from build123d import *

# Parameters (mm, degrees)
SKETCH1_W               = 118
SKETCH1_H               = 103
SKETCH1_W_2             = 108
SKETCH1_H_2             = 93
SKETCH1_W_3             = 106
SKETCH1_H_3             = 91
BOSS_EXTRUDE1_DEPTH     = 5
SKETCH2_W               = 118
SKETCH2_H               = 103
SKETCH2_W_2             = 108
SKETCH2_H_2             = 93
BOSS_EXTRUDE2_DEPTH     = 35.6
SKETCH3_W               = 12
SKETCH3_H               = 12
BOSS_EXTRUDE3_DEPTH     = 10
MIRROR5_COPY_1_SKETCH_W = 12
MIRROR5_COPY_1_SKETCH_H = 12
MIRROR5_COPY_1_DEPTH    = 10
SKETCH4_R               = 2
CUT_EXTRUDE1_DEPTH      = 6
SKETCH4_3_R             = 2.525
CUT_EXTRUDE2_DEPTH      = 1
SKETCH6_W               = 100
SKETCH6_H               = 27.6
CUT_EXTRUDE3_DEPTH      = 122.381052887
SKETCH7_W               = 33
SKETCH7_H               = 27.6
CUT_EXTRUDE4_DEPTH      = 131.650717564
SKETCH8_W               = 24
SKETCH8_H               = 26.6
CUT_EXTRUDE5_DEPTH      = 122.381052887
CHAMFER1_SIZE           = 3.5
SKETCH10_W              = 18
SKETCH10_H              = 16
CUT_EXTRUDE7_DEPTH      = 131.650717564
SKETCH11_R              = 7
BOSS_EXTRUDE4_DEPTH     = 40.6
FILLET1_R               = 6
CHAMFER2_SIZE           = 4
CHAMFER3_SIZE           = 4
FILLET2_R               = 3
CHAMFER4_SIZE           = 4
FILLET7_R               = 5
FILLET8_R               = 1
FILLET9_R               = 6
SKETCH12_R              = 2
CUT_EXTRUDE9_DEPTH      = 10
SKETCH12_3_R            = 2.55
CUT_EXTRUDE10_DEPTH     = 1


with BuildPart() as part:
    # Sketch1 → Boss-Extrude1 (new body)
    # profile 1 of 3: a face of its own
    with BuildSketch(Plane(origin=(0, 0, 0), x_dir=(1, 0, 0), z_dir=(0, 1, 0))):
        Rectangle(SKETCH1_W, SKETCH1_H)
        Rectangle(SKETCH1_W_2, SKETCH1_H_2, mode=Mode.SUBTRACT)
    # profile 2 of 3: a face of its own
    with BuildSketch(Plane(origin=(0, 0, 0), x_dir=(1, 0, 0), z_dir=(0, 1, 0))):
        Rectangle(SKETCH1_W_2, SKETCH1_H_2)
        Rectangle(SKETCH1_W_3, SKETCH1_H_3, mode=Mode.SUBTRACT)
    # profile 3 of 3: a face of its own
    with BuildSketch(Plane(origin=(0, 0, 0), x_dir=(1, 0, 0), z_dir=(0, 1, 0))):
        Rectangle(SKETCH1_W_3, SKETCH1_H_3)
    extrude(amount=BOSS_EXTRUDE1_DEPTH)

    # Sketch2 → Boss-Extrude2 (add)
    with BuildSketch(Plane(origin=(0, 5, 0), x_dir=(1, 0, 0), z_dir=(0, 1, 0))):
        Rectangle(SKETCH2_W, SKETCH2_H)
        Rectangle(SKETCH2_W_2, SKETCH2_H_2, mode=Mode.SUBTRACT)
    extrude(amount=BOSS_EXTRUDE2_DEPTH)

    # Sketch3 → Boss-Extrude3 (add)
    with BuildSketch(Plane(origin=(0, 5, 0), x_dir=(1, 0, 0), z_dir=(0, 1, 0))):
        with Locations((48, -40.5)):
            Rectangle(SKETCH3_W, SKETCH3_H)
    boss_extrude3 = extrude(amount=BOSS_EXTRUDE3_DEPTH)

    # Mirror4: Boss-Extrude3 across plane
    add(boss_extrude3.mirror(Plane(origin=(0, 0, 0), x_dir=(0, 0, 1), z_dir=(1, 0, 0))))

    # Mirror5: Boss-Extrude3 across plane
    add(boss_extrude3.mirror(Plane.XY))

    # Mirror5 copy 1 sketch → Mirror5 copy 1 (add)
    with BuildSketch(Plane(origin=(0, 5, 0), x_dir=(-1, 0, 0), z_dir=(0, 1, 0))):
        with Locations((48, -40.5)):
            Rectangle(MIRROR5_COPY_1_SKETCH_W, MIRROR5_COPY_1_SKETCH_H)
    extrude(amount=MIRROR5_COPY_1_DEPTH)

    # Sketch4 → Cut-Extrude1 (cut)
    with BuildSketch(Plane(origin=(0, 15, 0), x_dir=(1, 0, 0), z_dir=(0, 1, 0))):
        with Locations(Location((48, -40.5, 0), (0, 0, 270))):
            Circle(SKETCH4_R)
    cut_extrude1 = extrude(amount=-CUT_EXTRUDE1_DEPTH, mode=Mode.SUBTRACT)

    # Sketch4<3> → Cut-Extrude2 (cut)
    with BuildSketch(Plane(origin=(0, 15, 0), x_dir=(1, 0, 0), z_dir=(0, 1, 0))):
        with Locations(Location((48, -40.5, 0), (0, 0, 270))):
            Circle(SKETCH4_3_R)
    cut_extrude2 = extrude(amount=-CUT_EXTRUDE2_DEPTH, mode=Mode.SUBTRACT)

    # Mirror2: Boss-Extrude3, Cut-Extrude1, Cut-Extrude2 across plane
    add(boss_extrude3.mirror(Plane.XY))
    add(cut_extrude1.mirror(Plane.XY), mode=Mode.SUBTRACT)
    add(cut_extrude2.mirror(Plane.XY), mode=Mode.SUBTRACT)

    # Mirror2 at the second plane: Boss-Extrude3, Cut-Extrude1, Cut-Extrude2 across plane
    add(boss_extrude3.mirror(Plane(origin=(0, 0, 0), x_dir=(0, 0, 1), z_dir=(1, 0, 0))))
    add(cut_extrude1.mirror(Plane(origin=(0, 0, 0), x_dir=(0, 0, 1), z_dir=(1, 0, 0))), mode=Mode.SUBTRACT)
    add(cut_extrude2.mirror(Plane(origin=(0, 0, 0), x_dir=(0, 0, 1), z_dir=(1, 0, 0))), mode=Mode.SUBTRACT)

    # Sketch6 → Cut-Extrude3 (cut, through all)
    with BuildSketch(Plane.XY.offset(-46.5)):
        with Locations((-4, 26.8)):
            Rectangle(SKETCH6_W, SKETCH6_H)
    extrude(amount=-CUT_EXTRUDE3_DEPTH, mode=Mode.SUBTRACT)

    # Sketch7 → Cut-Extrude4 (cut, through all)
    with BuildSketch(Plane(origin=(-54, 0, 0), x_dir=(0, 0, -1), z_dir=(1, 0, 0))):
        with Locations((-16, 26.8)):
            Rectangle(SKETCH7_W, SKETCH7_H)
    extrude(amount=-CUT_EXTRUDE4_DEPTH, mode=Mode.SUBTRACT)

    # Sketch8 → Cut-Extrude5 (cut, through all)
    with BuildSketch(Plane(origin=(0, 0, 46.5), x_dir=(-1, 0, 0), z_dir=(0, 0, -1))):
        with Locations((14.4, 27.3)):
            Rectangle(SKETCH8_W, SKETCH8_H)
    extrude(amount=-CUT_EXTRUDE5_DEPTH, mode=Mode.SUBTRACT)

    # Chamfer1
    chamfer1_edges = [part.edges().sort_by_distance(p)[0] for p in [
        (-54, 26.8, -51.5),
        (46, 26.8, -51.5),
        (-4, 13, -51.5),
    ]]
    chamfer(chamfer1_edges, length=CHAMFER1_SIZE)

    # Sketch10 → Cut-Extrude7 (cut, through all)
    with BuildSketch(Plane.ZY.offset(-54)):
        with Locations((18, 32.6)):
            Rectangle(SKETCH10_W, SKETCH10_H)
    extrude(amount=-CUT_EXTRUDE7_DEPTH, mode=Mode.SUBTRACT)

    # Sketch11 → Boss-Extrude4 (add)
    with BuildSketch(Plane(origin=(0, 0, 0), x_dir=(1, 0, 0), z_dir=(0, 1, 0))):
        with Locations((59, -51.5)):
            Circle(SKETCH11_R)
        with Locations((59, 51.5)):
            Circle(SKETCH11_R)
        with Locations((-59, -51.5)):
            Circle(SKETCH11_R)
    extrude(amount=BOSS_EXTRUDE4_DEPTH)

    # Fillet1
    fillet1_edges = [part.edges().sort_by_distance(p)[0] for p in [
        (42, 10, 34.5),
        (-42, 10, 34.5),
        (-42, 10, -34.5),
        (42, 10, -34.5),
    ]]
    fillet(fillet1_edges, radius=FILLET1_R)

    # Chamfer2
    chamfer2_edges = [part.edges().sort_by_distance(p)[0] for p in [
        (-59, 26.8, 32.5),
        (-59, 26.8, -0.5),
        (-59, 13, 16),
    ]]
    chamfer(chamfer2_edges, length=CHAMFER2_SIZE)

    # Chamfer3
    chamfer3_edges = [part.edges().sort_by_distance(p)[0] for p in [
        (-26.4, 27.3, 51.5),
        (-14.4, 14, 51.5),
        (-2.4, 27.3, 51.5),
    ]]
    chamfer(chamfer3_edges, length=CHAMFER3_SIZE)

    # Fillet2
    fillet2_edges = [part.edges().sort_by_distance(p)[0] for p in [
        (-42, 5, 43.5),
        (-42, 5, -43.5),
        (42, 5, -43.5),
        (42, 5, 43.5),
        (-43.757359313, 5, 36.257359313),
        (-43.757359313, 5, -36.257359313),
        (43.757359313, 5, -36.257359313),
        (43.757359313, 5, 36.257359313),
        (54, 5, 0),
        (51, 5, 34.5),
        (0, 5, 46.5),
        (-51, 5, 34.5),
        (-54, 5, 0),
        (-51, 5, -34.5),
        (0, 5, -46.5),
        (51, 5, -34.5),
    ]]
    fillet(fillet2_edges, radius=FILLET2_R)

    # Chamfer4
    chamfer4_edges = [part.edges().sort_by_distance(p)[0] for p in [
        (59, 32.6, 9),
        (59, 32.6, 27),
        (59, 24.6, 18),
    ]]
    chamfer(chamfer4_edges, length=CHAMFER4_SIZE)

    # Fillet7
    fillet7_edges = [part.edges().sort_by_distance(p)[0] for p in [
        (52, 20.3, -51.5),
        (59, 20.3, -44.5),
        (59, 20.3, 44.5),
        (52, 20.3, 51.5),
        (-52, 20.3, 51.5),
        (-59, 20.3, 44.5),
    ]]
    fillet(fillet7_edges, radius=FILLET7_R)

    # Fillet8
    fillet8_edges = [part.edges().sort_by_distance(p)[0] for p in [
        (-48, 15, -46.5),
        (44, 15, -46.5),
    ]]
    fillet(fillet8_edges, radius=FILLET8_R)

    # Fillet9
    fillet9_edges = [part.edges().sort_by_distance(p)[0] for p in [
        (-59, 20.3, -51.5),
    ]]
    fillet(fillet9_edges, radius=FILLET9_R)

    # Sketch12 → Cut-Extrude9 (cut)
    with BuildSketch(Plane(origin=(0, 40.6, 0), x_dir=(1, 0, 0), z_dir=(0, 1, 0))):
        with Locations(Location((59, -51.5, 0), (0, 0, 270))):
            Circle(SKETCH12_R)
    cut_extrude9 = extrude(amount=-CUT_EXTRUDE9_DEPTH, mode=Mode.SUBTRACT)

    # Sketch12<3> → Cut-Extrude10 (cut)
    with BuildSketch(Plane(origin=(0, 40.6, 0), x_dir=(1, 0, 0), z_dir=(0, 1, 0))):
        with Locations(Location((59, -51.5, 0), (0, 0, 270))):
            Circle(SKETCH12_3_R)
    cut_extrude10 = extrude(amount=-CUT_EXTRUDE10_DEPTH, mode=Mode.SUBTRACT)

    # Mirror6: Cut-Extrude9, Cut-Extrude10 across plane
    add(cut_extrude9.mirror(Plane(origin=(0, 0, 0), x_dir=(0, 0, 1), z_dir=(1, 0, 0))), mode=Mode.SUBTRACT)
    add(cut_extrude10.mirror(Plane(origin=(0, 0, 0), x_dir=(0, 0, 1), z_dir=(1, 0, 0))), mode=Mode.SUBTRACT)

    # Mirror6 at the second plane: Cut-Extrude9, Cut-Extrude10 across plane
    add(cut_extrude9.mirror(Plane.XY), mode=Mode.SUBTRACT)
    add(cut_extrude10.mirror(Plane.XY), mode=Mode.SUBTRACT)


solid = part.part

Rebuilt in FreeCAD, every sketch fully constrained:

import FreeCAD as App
import Part
import Sketcher


def edges_at(feature, points):
    """Names of the edges that pass closest to the given points."""
    edges = feature.Shape.Edges
    near = lambda p: min(range(len(edges)), key=lambda i: edges[i].distToShape(Part.Vertex(*p))[0])
    return sorted({f"Edge{near(p) + 1}" for p in points})

doc = App.newDocument("Part")
body = doc.addObject("PartDesign::Body", "Body")

sketch1 = body.newObject("Sketcher::SketchObject", "Sketch")
sketch1.AttachmentSupport = (doc.getObject("XZ_Plane"), [""])
sketch1.MapMode = "FlatFace"
sketch1.addGeometry(Part.LineSegment(App.Vector(-59, -52, 0), App.Vector(-59, 52, 0)), False)
sketch1.addGeometry(Part.LineSegment(App.Vector(-59, 52, 0), App.Vector(59, 52, 0)), False)
sketch1.addGeometry(Part.LineSegment(App.Vector(59, 52, 0), App.Vector(59, -52, 0)), False)
sketch1.addGeometry(Part.LineSegment(App.Vector(59, -52, 0), App.Vector(-59, -52, 0)), False)
sketch1.addConstraint(Sketcher.Constraint("Coincident", 0, 2, 1, 1))
sketch1.addConstraint(Sketcher.Constraint("Coincident", 1, 2, 2, 1))
sketch1.addConstraint(Sketcher.Constraint("Coincident", 2, 2, 3, 1))
sketch1.addConstraint(Sketcher.Constraint("Coincident", 3, 2, 0, 1))
sketch1.addConstraint(Sketcher.Constraint("Vertical", 0))
sketch1.addConstraint(Sketcher.Constraint("Horizontal", 1))
sketch1.addConstraint(Sketcher.Constraint("Vertical", 2))
sketch1.addConstraint(Sketcher.Constraint("Horizontal", 3))
sketch1.addConstraint(Sketcher.Constraint("Symmetric", 0, 2, 2, 2, -1, 1))
sketch1.addConstraint(Sketcher.Constraint("DistanceX", 1, 1, 1, 2, 118.0))
sketch1.addConstraint(Sketcher.Constraint("DistanceY", 0, 1, 0, 2, 103.0))
pad1 = body.newObject("PartDesign::Pad", "Pad")
pad1.Profile = sketch1
pad1.Length = 5
pad1.Reversed = True

sketch2 = body.newObject("Sketcher::SketchObject", "Sketch001")
sketch2.AttachmentSupport = (doc.getObject("XZ_Plane"), [""])
sketch2.MapMode = "FlatFace"
sketch2.AttachmentOffset = App.Placement(App.Vector(0, 0, -5), App.Rotation())
sketch2.addGeometry(Part.LineSegment(App.Vector(-59, -52, 0), App.Vector(-59, 52, 0)), False)
sketch2.addGeometry(Part.LineSegment(App.Vector(-59, 52, 0), App.Vector(59, 52, 0)), False)
sketch2.addGeometry(Part.LineSegment(App.Vector(59, 52, 0), App.Vector(59, -52, 0)), False)
sketch2.addGeometry(Part.LineSegment(App.Vector(59, -52, 0), App.Vector(-59, -52, 0)), False)
sketch2.addGeometry(Part.LineSegment(App.Vector(54, 46, 0), App.Vector(-54, 46, 0)), False)
sketch2.addGeometry(Part.LineSegment(App.Vector(-54, 46, 0), App.Vector(-54, -46, 0)), False)
sketch2.addGeometry(Part.LineSegment(App.Vector(-54, -46, 0), App.Vector(54, -46, 0)), False)
sketch2.addGeometry(Part.LineSegment(App.Vector(54, -46, 0), App.Vector(54, 46, 0)), False)
sketch2.addConstraint(Sketcher.Constraint("Coincident", 0, 2, 1, 1))
sketch2.addConstraint(Sketcher.Constraint("Coincident", 1, 2, 2, 1))
sketch2.addConstraint(Sketcher.Constraint("Coincident", 2, 2, 3, 1))
sketch2.addConstraint(Sketcher.Constraint("Coincident", 3, 2, 0, 1))
sketch2.addConstraint(Sketcher.Constraint("Coincident", 4, 2, 5, 1))
sketch2.addConstraint(Sketcher.Constraint("Coincident", 5, 2, 6, 1))
sketch2.addConstraint(Sketcher.Constraint("Coincident", 6, 2, 7, 1))
sketch2.addConstraint(Sketcher.Constraint("Coincident", 7, 2, 4, 1))
sketch2.addConstraint(Sketcher.Constraint("Vertical", 0))
sketch2.addConstraint(Sketcher.Constraint("Horizontal", 1))
sketch2.addConstraint(Sketcher.Constraint("Vertical", 2))
sketch2.addConstraint(Sketcher.Constraint("Horizontal", 3))
sketch2.addConstraint(Sketcher.Constraint("Horizontal", 4))
sketch2.addConstraint(Sketcher.Constraint("Vertical", 5))
sketch2.addConstraint(Sketcher.Constraint("Horizontal", 6))
sketch2.addConstraint(Sketcher.Constraint("Vertical", 7))
sketch2.addConstraint(Sketcher.Constraint("Symmetric", 0, 2, 2, 2, -1, 1))
sketch2.addConstraint(Sketcher.Constraint("Symmetric", 4, 2, 6, 2, -1, 1))
sketch2.addConstraint(Sketcher.Constraint("DistanceX", 1, 1, 1, 2, 118.0))
sketch2.addConstraint(Sketcher.Constraint("DistanceX", 4, 2, 4, 1, 108.0))
sketch2.addConstraint(Sketcher.Constraint("DistanceY", 0, 1, 0, 2, 103.0))
sketch2.addConstraint(Sketcher.Constraint("DistanceY", 5, 2, 5, 1, 93.0))
pad2 = body.newObject("PartDesign::Pad", "Pad001")
pad2.Profile = sketch2
pad2.Length = 35.6
pad2.Reversed = True

sketch3 = body.newObject("Sketcher::SketchObject", "Sketch002")
sketch3.AttachmentSupport = (doc.getObject("XZ_Plane"), [""])
sketch3.MapMode = "FlatFace"
sketch3.AttachmentOffset = App.Placement(App.Vector(0, 0, -5), App.Rotation())
sketch3.addGeometry(Part.LineSegment(App.Vector(42, 34, 0), App.Vector(42, 46, 0)), False)
sketch3.addGeometry(Part.LineSegment(App.Vector(42, 46, 0), App.Vector(54, 46, 0)), False)
sketch3.addGeometry(Part.LineSegment(App.Vector(54, 46, 0), App.Vector(54, 34, 0)), False)
sketch3.addGeometry(Part.LineSegment(App.Vector(54, 34, 0), App.Vector(42, 34, 0)), False)
sketch3.addConstraint(Sketcher.Constraint("Coincident", 0, 2, 1, 1))
sketch3.addConstraint(Sketcher.Constraint("Coincident", 1, 2, 2, 1))
sketch3.addConstraint(Sketcher.Constraint("Coincident", 2, 2, 3, 1))
sketch3.addConstraint(Sketcher.Constraint("Coincident", 3, 2, 0, 1))
sketch3.addConstraint(Sketcher.Constraint("Vertical", 0))
sketch3.addConstraint(Sketcher.Constraint("Horizontal", 1))
sketch3.addConstraint(Sketcher.Constraint("Vertical", 2))
sketch3.addConstraint(Sketcher.Constraint("Horizontal", 3))
sketch3.addConstraint(Sketcher.Constraint("Equal", 3, 0))
sketch3.addConstraint(Sketcher.Constraint("DistanceX", 1, 1, 1, 2, 12.0))
sketch3.addConstraint(Sketcher.Constraint("DistanceX", -1, 1, 0, 2, 42.0))
sketch3.addConstraint(Sketcher.Constraint("DistanceY", -1, 1, 0, 2, 46.5))
pad3 = body.newObject("PartDesign::Pad", "Pad002")
pad3.Profile = sketch3
pad3.Length = 10
pad3.Reversed = True
doc.recompute()

mirrored = body.newObject("PartDesign::Mirrored", "Mirrored")
mirrored.Originals = [pad3]
mirrored.MirrorPlane = (doc.getObject("YZ_Plane"), [""])
body.Tip = mirrored
doc.recompute()

mirrored2 = body.newObject("PartDesign::Mirrored", "Mirrored001")
mirrored2.Originals = [pad3]
mirrored2.MirrorPlane = (doc.getObject("XY_Plane"), [""])
body.Tip = mirrored2

sketch4 = body.newObject("Sketcher::SketchObject", "Sketch003")
sketch4.AttachmentSupport = (doc.getObject("XZ_Plane"), [""])
sketch4.MapMode = "FlatFace"
sketch4.AttachmentOffset = App.Placement(App.Vector(0, 0, -5), App.Rotation())
sketch4.addGeometry(Part.LineSegment(App.Vector(-42, -34, 0), App.Vector(-42, -46, 0)), False)
sketch4.addGeometry(Part.LineSegment(App.Vector(-42, -46, 0), App.Vector(-54, -46, 0)), False)
sketch4.addGeometry(Part.LineSegment(App.Vector(-54, -46, 0), App.Vector(-54, -34, 0)), False)
sketch4.addGeometry(Part.LineSegment(App.Vector(-54, -34, 0), App.Vector(-42, -34, 0)), False)
sketch4.addConstraint(Sketcher.Constraint("Coincident", 0, 2, 1, 1))
sketch4.addConstraint(Sketcher.Constraint("Coincident", 1, 2, 2, 1))
sketch4.addConstraint(Sketcher.Constraint("Coincident", 2, 2, 3, 1))
sketch4.addConstraint(Sketcher.Constraint("Coincident", 3, 2, 0, 1))
sketch4.addConstraint(Sketcher.Constraint("Vertical", 0))
sketch4.addConstraint(Sketcher.Constraint("Horizontal", 1))
sketch4.addConstraint(Sketcher.Constraint("Vertical", 2))
sketch4.addConstraint(Sketcher.Constraint("Horizontal", 3))
sketch4.addConstraint(Sketcher.Constraint("Equal", 3, 0))
sketch4.addConstraint(Sketcher.Constraint("DistanceX", 1, 2, 1, 1, 12.0))
sketch4.addConstraint(Sketcher.Constraint("DistanceX", 0, 2, -1, 1, 42.0))
sketch4.addConstraint(Sketcher.Constraint("DistanceY", 0, 2, -1, 1, 46.5))
pad4 = body.newObject("PartDesign::Pad", "Pad003")
pad4.Profile = sketch4
pad4.Length = 10
pad4.Reversed = True

sketch5 = body.newObject("Sketcher::SketchObject", "Sketch004")
sketch5.AttachmentSupport = (doc.getObject("XZ_Plane"), [""])
sketch5.MapMode = "FlatFace"
sketch5.AttachmentOffset = App.Placement(App.Vector(0, 0, -15), App.Rotation())
sketch5.addGeometry(Part.Circle(App.Vector(48, 40.5, 0), App.Vector(0, 0, 1), 2), False)
sketch5.addConstraint(Sketcher.Constraint("Diameter", 0, 4.0))
sketch5.addConstraint(Sketcher.Constraint("DistanceX", -1, 1, 0, 3, 48.0))
sketch5.addConstraint(Sketcher.Constraint("DistanceY", -1, 1, 0, 3, 40.5))
pocket1 = body.newObject("PartDesign::Pocket", "Pocket")
pocket1.Profile = sketch5
pocket1.Length = 6
pocket1.Reversed = True

sketch6 = body.newObject("Sketcher::SketchObject", "Sketch005")
sketch6.AttachmentSupport = (doc.getObject("XZ_Plane"), [""])
sketch6.MapMode = "FlatFace"
sketch6.AttachmentOffset = App.Placement(App.Vector(0, 0, -15), App.Rotation())
sketch6.addGeometry(Part.Circle(App.Vector(48, 40.5, 0), App.Vector(0, 0, 1), 2.5), False)
sketch6.addConstraint(Sketcher.Constraint("Diameter", 0, 5.05))
sketch6.addConstraint(Sketcher.Constraint("DistanceX", -1, 1, 0, 3, 48.0))
sketch6.addConstraint(Sketcher.Constraint("DistanceY", -1, 1, 0, 3, 40.5))
pocket2 = body.newObject("PartDesign::Pocket", "Pocket001")
pocket2.Profile = sketch6
pocket2.Length = 1
pocket2.Reversed = True
doc.recompute()

mirrored3 = body.newObject("PartDesign::Mirrored", "Mirrored002")
mirrored3.Originals = [pad3, pocket1, pocket2]
mirrored3.MirrorPlane = (doc.getObject("XY_Plane"), [""])
body.Tip = mirrored3
doc.recompute()

mirrored4 = body.newObject("PartDesign::Mirrored", "Mirrored003")
mirrored4.Originals = [pad3, pocket1, pocket2]
mirrored4.MirrorPlane = (doc.getObject("YZ_Plane"), [""])
body.Tip = mirrored4

sketch7 = body.newObject("Sketcher::SketchObject", "Sketch006")
sketch7.AttachmentSupport = (doc.getObject("XY_Plane"), [""])
sketch7.MapMode = "FlatFace"
sketch7.AttachmentOffset = App.Placement(App.Vector(0, 0, -46.5), App.Rotation())
sketch7.addGeometry(Part.LineSegment(App.Vector(-54, 41, 0), App.Vector(-54, 13, 0)), False)
sketch7.addGeometry(Part.LineSegment(App.Vector(-54, 13, 0), App.Vector(46, 13, 0)), False)
sketch7.addGeometry(Part.LineSegment(App.Vector(46, 13, 0), App.Vector(46, 41, 0)), False)
sketch7.addGeometry(Part.LineSegment(App.Vector(46, 41, 0), App.Vector(-54, 41, 0)), False)
sketch7.addConstraint(Sketcher.Constraint("Coincident", 0, 2, 1, 1))
sketch7.addConstraint(Sketcher.Constraint("Coincident", 1, 2, 2, 1))
sketch7.addConstraint(Sketcher.Constraint("Coincident", 2, 2, 3, 1))
sketch7.addConstraint(Sketcher.Constraint("Coincident", 3, 2, 0, 1))
sketch7.addConstraint(Sketcher.Constraint("Vertical", 0))
sketch7.addConstraint(Sketcher.Constraint("Horizontal", 1))
sketch7.addConstraint(Sketcher.Constraint("Vertical", 2))
sketch7.addConstraint(Sketcher.Constraint("Horizontal", 3))
sketch7.addConstraint(Sketcher.Constraint("DistanceX", 1, 1, 1, 2, 100.0))
sketch7.addConstraint(Sketcher.Constraint("DistanceY", 0, 2, 0, 1, 27.6))
sketch7.addConstraint(Sketcher.Constraint("DistanceX", 0, 2, -1, 1, 54.0))
sketch7.addConstraint(Sketcher.Constraint("DistanceY", -1, 1, 0, 2, 13.0))
pocket3 = body.newObject("PartDesign::Pocket", "Pocket002")
pocket3.Profile = sketch7
pocket3.Type = "ThroughAll"

sketch8 = body.newObject("Sketcher::SketchObject", "Sketch007")
sketch8.AttachmentSupport = (doc.getObject("YZ_Plane"), [""])
sketch8.MapMode = "FlatFace"
sketch8.AttachmentOffset = App.Placement(App.Vector(0, 0, -54), App.Rotation())
sketch8.addGeometry(Part.LineSegment(App.Vector(41, 32, 0), App.Vector(13, 32, 0)), False)
sketch8.addGeometry(Part.LineSegment(App.Vector(13, 32, 0), App.Vector(13, 0, 0)), False)
sketch8.addGeometry(Part.LineSegment(App.Vector(13, 0, 0), App.Vector(41, 0, 0)), False)
sketch8.addGeometry(Part.LineSegment(App.Vector(41, 0, 0), App.Vector(41, 32, 0)), False)
sketch8.addConstraint(Sketcher.Constraint("Coincident", 0, 2, 1, 1))
sketch8.addConstraint(Sketcher.Constraint("Coincident", 1, 2, 2, 1))
sketch8.addConstraint(Sketcher.Constraint("Coincident", 2, 2, 3, 1))
sketch8.addConstraint(Sketcher.Constraint("Coincident", 3, 2, 0, 1))
sketch8.addConstraint(Sketcher.Constraint("Horizontal", 0))
sketch8.addConstraint(Sketcher.Constraint("Vertical", 1))
sketch8.addConstraint(Sketcher.Constraint("Horizontal", 2))
sketch8.addConstraint(Sketcher.Constraint("Vertical", 3))
sketch8.addConstraint(Sketcher.Constraint("DistanceY", 1, 2, 1, 1, 33.0))
sketch8.addConstraint(Sketcher.Constraint("DistanceX", 0, 2, 0, 1, 27.6))
sketch8.addConstraint(Sketcher.Constraint("DistanceX", -1, 1, 0, 2, 13.0))
sketch8.addConstraint(Sketcher.Constraint("DistanceY", -1, 1, 0, 2, 32.5))
pocket4 = body.newObject("PartDesign::Pocket", "Pocket003")
pocket4.Profile = sketch8
pocket4.Type = "ThroughAll"

sketch9 = body.newObject("Sketcher::SketchObject", "Sketch008")
sketch9.AttachmentSupport = (doc.getObject("XY_Plane"), [""])
sketch9.MapMode = "FlatFace"
sketch9.AttachmentOffset = App.Placement(App.Vector(0, 0, 46.5), App.Rotation())
sketch9.addGeometry(Part.LineSegment(App.Vector(-2, 41, 0), App.Vector(-2, 14, 0)), False)
sketch9.addGeometry(Part.LineSegment(App.Vector(-2, 14, 0), App.Vector(-26, 14, 0)), False)
sketch9.addGeometry(Part.LineSegment(App.Vector(-26, 14, 0), App.Vector(-26, 41, 0)), False)
sketch9.addGeometry(Part.LineSegment(App.Vector(-26, 41, 0), App.Vector(-2, 41, 0)), False)
sketch9.addConstraint(Sketcher.Constraint("Coincident", 0, 2, 1, 1))
sketch9.addConstraint(Sketcher.Constraint("Coincident", 1, 2, 2, 1))
sketch9.addConstraint(Sketcher.Constraint("Coincident", 2, 2, 3, 1))
sketch9.addConstraint(Sketcher.Constraint("Coincident", 3, 2, 0, 1))
sketch9.addConstraint(Sketcher.Constraint("Vertical", 0))
sketch9.addConstraint(Sketcher.Constraint("Horizontal", 1))
sketch9.addConstraint(Sketcher.Constraint("Vertical", 2))
sketch9.addConstraint(Sketcher.Constraint("Horizontal", 3))
sketch9.addConstraint(Sketcher.Constraint("DistanceX", 1, 2, 1, 1, 24.0))
sketch9.addConstraint(Sketcher.Constraint("DistanceY", 0, 2, 0, 1, 26.6))
sketch9.addConstraint(Sketcher.Constraint("DistanceY", -1, 1, 0, 2, 14.0))
sketch9.addConstraint(Sketcher.Constraint("DistanceX", 0, 2, -1, 1, 2.4))
pocket5 = body.newObject("PartDesign::Pocket", "Pocket004")
pocket5.Profile = sketch9
pocket5.Type = "ThroughAll"
pocket5.Reversed = True
doc.recompute()

chamfer = body.newObject("PartDesign::Chamfer", "Chamfer")
chamfer.Base = (pocket5, edges_at(pocket5, [(-54, 26.8, -51.5), (46, 26.8, -51.5), (-4, 13, -51.5)]))
chamfer.Size = 3.5

sketch10 = body.newObject("Sketcher::SketchObject", "Sketch009")
sketch10.AttachmentSupport = (doc.getObject("YZ_Plane"), [""])
sketch10.MapMode = "FlatFace"
sketch10.AttachmentOffset = App.Placement(App.Vector(0, 0, 54), App.Rotation())
sketch10.addGeometry(Part.LineSegment(App.Vector(41, 9, 0), App.Vector(25, 9, 0)), False)
sketch10.addGeometry(Part.LineSegment(App.Vector(25, 9, 0), App.Vector(25, 27, 0)), False)
sketch10.addGeometry(Part.LineSegment(App.Vector(25, 27, 0), App.Vector(41, 27, 0)), False)
sketch10.addGeometry(Part.LineSegment(App.Vector(41, 27, 0), App.Vector(41, 9, 0)), False)
sketch10.addConstraint(Sketcher.Constraint("Coincident", 0, 2, 1, 1))
sketch10.addConstraint(Sketcher.Constraint("Coincident", 1, 2, 2, 1))
sketch10.addConstraint(Sketcher.Constraint("Coincident", 2, 2, 3, 1))
sketch10.addConstraint(Sketcher.Constraint("Coincident", 3, 2, 0, 1))
sketch10.addConstraint(Sketcher.Constraint("Horizontal", 0))
sketch10.addConstraint(Sketcher.Constraint("Vertical", 1))
sketch10.addConstraint(Sketcher.Constraint("Horizontal", 2))
sketch10.addConstraint(Sketcher.Constraint("Vertical", 3))
sketch10.addConstraint(Sketcher.Constraint("DistanceX", 0, 2, 0, 1, 16.0))
sketch10.addConstraint(Sketcher.Constraint("DistanceY", 1, 1, 1, 2, 18.0))
sketch10.addConstraint(Sketcher.Constraint("DistanceY", -1, 1, 0, 2, 9.0))
sketch10.addConstraint(Sketcher.Constraint("DistanceX", -1, 1, 0, 2, 24.6))
pocket6 = body.newObject("PartDesign::Pocket", "Pocket005")
pocket6.Profile = sketch10
pocket6.Type = "ThroughAll"
pocket6.Reversed = True

sketch11 = body.newObject("Sketcher::SketchObject", "Sketch010")
sketch11.AttachmentSupport = (doc.getObject("XZ_Plane"), [""])
sketch11.MapMode = "FlatFace"
sketch11.addGeometry(Part.Circle(App.Vector(59, 52, 0), App.Vector(0, 0, 1), 7), False)
sketch11.addGeometry(Part.Circle(App.Vector(59, -52, 0), App.Vector(0, 0, 1), 7), False)
sketch11.addGeometry(Part.Circle(App.Vector(-59, 52, 0), App.Vector(0, 0, 1), 7), False)
sketch11.addConstraint(Sketcher.Constraint("Equal", 0, 1))
sketch11.addConstraint(Sketcher.Constraint("Equal", 1, 2))
sketch11.addConstraint(Sketcher.Constraint("Symmetric", 1, 3, 2, 3, -1, 1))
sketch11.addConstraint(Sketcher.Constraint("Symmetric", 0, 3, 2, 3, -2))
sketch11.addConstraint(Sketcher.Constraint("Diameter", 0, 14.0))
sketch11.addConstraint(Sketcher.Constraint("DistanceX", -1, 1, 0, 3, 59.0))
sketch11.addConstraint(Sketcher.Constraint("DistanceY", 1, 3, 0, 3, 103.0))
pad5 = body.newObject("PartDesign::Pad", "Pad004")
pad5.Profile = sketch11
pad5.Length = 40.6
pad5.Reversed = True
doc.recompute()

fillet = body.newObject("PartDesign::Fillet", "Fillet")
fillet.Base = (pad5, edges_at(pad5, [
    (42, 10, 34.5),
    (-42, 10, 34.5),
    (-42, 10, -34.5),
    (42, 10, -34.5),
]))
fillet.Radius = 6
doc.recompute()

chamfer2 = body.newObject("PartDesign::Chamfer", "Chamfer001")
chamfer2.Base = (fillet, edges_at(fillet, [(-59, 26.8, 32.5), (-59, 26.8, -0.5), (-59, 13, 16)]))
chamfer2.Size = 4
doc.recompute()

chamfer3 = body.newObject("PartDesign::Chamfer", "Chamfer002")
chamfer3.Base = (chamfer2, edges_at(chamfer2, [(-26.4, 27.3, 51.5), (-14.4, 14, 51.5), (-2.4, 27.3, 51.5)]))
chamfer3.Size = 4
doc.recompute()

fillet2 = body.newObject("PartDesign::Fillet", "Fillet001")
fillet2.Base = (chamfer3, edges_at(chamfer3, [
    (-42, 5, 43.5),
    (-42, 5, -43.5),
    (42, 5, -43.5),
    (42, 5, 43.5),
    (-43.757, 5, 36.257),
    (-43.757, 5, -36.257),
    (43.757, 5, -36.257),
    (43.757, 5, 36.257),
    (54, 5, 0),
    (51, 5, 34.5),
    (0, 5, 46.5),
    (-51, 5, 34.5),
    (-54, 5, 0),
    (-51, 5, -34.5),
    (0, 5, -46.5),
    (51, 5, -34.5),
]))
fillet2.Radius = 3
doc.recompute()

chamfer4 = body.newObject("PartDesign::Chamfer", "Chamfer003")
chamfer4.Base = (fillet2, edges_at(fillet2, [(59, 32.6, 9), (59, 32.6, 27), (59, 24.6, 18)]))
chamfer4.Size = 4
doc.recompute()

fillet3 = body.newObject("PartDesign::Fillet", "Fillet002")
fillet3.Base = (chamfer4, edges_at(chamfer4, [
    (52, 20.3, -51.5),
    (59, 20.3, -44.5),
    (59, 20.3, 44.5),
    (52, 20.3, 51.5),
    (-52, 20.3, 51.5),
    (-59, 20.3, 44.5),
]))
fillet3.Radius = 5
doc.recompute()

fillet4 = body.newObject("PartDesign::Fillet", "Fillet003")
fillet4.Base = (fillet3, edges_at(fillet3, [(-48, 15, -46.5), (44, 15, -46.5)]))
fillet4.Radius = 1
doc.recompute()

fillet5 = body.newObject("PartDesign::Fillet", "Fillet004")
fillet5.Base = (fillet4, edges_at(fillet4, [(-59, 20.3, -51.5)]))
fillet5.Radius = 6

sketch12 = body.newObject("Sketcher::SketchObject", "Sketch011")
sketch12.AttachmentSupport = (doc.getObject("XZ_Plane"), [""])
sketch12.MapMode = "FlatFace"
sketch12.AttachmentOffset = App.Placement(App.Vector(0, 0, -40.6), App.Rotation())
sketch12.addGeometry(Part.Circle(App.Vector(59, 51.5, 0), App.Vector(0, 0, 1), 2), False)
sketch12.addConstraint(Sketcher.Constraint("Diameter", 0, 4.0))
sketch12.addConstraint(Sketcher.Constraint("DistanceX", -1, 1, 0, 3, 59.0))
sketch12.addConstraint(Sketcher.Constraint("DistanceY", -1, 1, 0, 3, 51.5))
pocket7 = body.newObject("PartDesign::Pocket", "Pocket006")
pocket7.Profile = sketch12
pocket7.Length = 10
pocket7.Reversed = True

sketch13 = body.newObject("Sketcher::SketchObject", "Sketch012")
sketch13.AttachmentSupport = (doc.getObject("XZ_Plane"), [""])
sketch13.MapMode = "FlatFace"
sketch13.AttachmentOffset = App.Placement(App.Vector(0, 0, -40.6), App.Rotation())
sketch13.addGeometry(Part.Circle(App.Vector(59, 51.5, 0), App.Vector(0, 0, 1), 2.5), False)
sketch13.addConstraint(Sketcher.Constraint("Diameter", 0, 5.1))
sketch13.addConstraint(Sketcher.Constraint("DistanceX", -1, 1, 0, 3, 59.0))
sketch13.addConstraint(Sketcher.Constraint("DistanceY", -1, 1, 0, 3, 51.5))
pocket8 = body.newObject("PartDesign::Pocket", "Pocket007")
pocket8.Profile = sketch13
pocket8.Length = 1
pocket8.Reversed = True
doc.recompute()

mirrored5 = body.newObject("PartDesign::Mirrored", "Mirrored004")
mirrored5.Originals = [pocket7, pocket8]
mirrored5.MirrorPlane = (doc.getObject("YZ_Plane"), [""])
body.Tip = mirrored5
doc.recompute()

mirrored6 = body.newObject("PartDesign::Mirrored", "Mirrored005")
mirrored6.Originals = [pocket7, pocket8]
mirrored6.MirrorPlane = (doc.getObject("XY_Plane"), [""])
body.Tip = mirrored6

doc.recompute()
